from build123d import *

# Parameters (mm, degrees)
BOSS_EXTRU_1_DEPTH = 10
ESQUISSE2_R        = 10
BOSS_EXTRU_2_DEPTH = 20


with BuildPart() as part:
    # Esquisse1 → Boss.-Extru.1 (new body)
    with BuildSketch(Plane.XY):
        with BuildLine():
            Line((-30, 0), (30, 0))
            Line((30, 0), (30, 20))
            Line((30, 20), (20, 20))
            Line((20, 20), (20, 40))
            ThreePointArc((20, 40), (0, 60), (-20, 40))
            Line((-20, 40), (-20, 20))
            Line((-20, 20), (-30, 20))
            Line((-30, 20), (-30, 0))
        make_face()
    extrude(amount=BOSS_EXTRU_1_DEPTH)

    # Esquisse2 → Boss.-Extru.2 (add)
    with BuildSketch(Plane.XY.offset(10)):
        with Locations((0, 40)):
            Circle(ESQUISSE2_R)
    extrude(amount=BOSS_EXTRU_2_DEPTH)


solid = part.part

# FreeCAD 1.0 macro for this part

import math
import FreeCAD as App
import Part
import Sketcher

V = App.Vector
Q = App.Units.Quantity

doc = App.newDocument("Part")
params = doc.addObject("Spreadsheet::Sheet", "Params")
for row, (alias, value) in enumerate([
    ("sketch1_radius", "20 mm"),
    ("sketch1_width", "60 mm"),
    ("sketch1_height", "20 mm"),
    ("pad1_length", "10 mm"),
    ("sketch2_diameter", "20 mm"),
    ("pad2_length", "20 mm"),
], start=1):
    params.set(f"A{row}", alias)
    params.set(f"B{row}", "=" + value)
    params.setAlias(f"B{row}", alias)

body = doc.addObject("PartDesign::Body", "Body")

# Sketch on XY plane
sketch1 = doc.addObject("Sketcher::SketchObject", "Sketch")
body.addObject(sketch1)
sketch1.AttachmentSupport = (doc.XY_Plane, [""])
sketch1.MapMode = "FlatFace"
sketch1.addGeometry(Part.LineSegment(V(-30, 0, 0), V(30, 0, 0)), False)
sketch1.addGeometry(Part.LineSegment(V(30, 0, 0), V(30, 20, 0)), False)
sketch1.addGeometry(Part.LineSegment(V(30, 20, 0), V(20, 20, 0)), False)
sketch1.addGeometry(Part.LineSegment(V(20, 20, 0), V(20, 40, 0)), False)
sketch1.addGeometry(Part.ArcOfCircle(Part.Circle(V(0, 40, 0), V(0, 0, 1), 20), math.radians(0), math.radians(180)), False)
sketch1.addGeometry(Part.LineSegment(V(-20, 40, 0), V(-20, 20, 0)), False)
sketch1.addGeometry(Part.LineSegment(V(-20, 20, 0), V(-30, 20, 0)), False)
sketch1.addGeometry(Part.LineSegment(V(-30, 20, 0), V(-30, 0, 0)), False)
sketch1.addConstraint(Sketcher.Constraint("Coincident", 0, 2, 1, 1))
sketch1.addConstraint(Sketcher.Constraint("Coincident", 1, 2, 2, 1))
sketch1.addConstraint(Sketcher.Constraint("Coincident", 2, 2, 3, 1))
sketch1.addConstraint(Sketcher.Constraint("Tangent", 3, 2, 4, 1))
sketch1.addConstraint(Sketcher.Constraint("Tangent", 4, 2, 5, 1))
sketch1.addConstraint(Sketcher.Constraint("Coincident", 5, 2, 6, 1))
sketch1.addConstraint(Sketcher.Constraint("Coincident", 6, 2, 7, 1))
sketch1.addConstraint(Sketcher.Constraint("Coincident", 7, 2, 0, 1))
sketch1.addConstraint(Sketcher.Constraint("Horizontal", 0))
sketch1.addConstraint(Sketcher.Constraint("Vertical", 1))
sketch1.addConstraint(Sketcher.Constraint("Horizontal", 2))
sketch1.addConstraint(Sketcher.Constraint("Vertical", 3))
sketch1.addConstraint(Sketcher.Constraint("Vertical", 5))
sketch1.addConstraint(Sketcher.Constraint("Horizontal", 6))
sketch1.addConstraint(Sketcher.Constraint("Vertical", 7))
sketch1.addConstraint(Sketcher.Constraint("Symmetric", 0, 2, 7, 2, -1, 1))
sketch1.addConstraint(Sketcher.Constraint("Symmetric", 2, 2, 5, 2, -2))
sketch1.addConstraint(Sketcher.Constraint("Equal", 1, 3))
sketch1.addConstraint(Sketcher.Constraint("Radius", 4, Q("20 mm")))
sketch1.addConstraint(Sketcher.Constraint("DistanceX", 0, 1, 0, 2, Q("60 mm")))
sketch1.addConstraint(Sketcher.Constraint("DistanceY", 1, 1, 1, 2, Q("20 mm")))
sketch1.setExpression("Constraints[18]", "Params.sketch1_radius")
sketch1.setExpression("Constraints[19]", "Params.sketch1_width")
sketch1.setExpression("Constraints[20]", "Params.sketch1_height")
pad1 = doc.addObject("PartDesign::Pad", "Pad")
body.addObject(pad1)
pad1.Profile = sketch1
pad1.setExpression("Length", "Params.pad1_length")

# Sketch on XY plane
sketch2 = doc.addObject("Sketcher::SketchObject", "Sketch001")
body.addObject(sketch2)
sketch2.AttachmentSupport = (doc.XY_Plane, [""])
sketch2.MapMode = "FlatFace"
sketch2.AttachmentOffset = App.Placement(V(0, 0, 10), App.Rotation())
sketch2.addGeometry(Part.Circle(V(0, 40, 0), V(0, 0, 1), 10), False)
sketch2.addConstraint(Sketcher.Constraint("PointOnObject", 0, 3, -2))
sketch2.addConstraint(Sketcher.Constraint("Diameter", 0, Q("20 mm")))
sketch2.addConstraint(Sketcher.Constraint("DistanceY", -1, 1, 0, 3, Q("40 mm")))
sketch2.setExpression("Constraints[1]", "Params.sketch2_diameter")
pad2 = doc.addObject("PartDesign::Pad", "Pad001")
body.addObject(pad2)
pad2.Profile = sketch2
pad2.setExpression("Length", "Params.pad2_length")

doc.recompute()
